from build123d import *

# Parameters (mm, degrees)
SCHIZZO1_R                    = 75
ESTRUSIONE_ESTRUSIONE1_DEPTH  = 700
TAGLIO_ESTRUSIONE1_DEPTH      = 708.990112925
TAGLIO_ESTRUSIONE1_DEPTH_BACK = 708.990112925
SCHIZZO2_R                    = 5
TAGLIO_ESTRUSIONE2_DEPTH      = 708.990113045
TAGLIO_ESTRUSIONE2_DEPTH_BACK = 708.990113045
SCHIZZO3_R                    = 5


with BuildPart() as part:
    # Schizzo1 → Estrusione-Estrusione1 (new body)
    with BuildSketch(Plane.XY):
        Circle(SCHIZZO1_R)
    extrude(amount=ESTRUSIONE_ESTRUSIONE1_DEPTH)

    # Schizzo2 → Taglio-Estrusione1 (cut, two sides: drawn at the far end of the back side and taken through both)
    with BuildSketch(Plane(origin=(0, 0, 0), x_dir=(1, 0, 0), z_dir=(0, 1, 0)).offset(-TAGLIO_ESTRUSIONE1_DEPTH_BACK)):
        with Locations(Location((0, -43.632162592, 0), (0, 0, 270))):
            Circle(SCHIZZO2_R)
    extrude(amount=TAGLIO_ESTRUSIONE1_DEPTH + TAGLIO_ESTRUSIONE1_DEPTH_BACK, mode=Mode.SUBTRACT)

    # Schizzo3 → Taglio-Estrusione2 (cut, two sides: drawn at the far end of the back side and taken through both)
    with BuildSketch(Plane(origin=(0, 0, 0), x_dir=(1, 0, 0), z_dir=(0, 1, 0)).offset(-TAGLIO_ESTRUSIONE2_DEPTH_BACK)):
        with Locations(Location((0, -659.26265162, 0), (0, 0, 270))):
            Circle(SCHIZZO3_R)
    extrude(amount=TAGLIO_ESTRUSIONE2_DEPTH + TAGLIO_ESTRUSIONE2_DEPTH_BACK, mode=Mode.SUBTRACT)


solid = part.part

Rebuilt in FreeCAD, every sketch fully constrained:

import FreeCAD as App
import Part
import Sketcher

V = App.Vector
Q = App.Units.Quantity

doc = App.newDocument("Part")
body = doc.addObject("PartDesign::Body", "Body")

sketch1 = doc.addObject("Sketcher::SketchObject", "Sketch")
body.addObject(sketch1)
sketch1.AttachmentSupport = (doc.XY_Plane, [""])
sketch1.MapMode = "FlatFace"
sketch1.addGeometry(Part.Circle(V(0, 0, 0), V(0, 0, 1), 75), False)
sketch1.addConstraint(Sketcher.Constraint("Coincident", 0, 3, -1, 1))
sketch1.addConstraint(Sketcher.Constraint("Diameter", 0, Q("150 mm")))
pad1 = doc.addObject("PartDesign::Pad", "Pad")
body.addObject(pad1)
pad1.Profile = sketch1
pad1.Length = 700

sketch2 = doc.addObject("Sketcher::SketchObject", "Sketch001")
body.addObject(sketch2)
sketch2.AttachmentSupport = (doc.XZ_Plane, [""])
sketch2.MapMode = "FlatFace"
sketch2.addGeometry(Part.Circle(V(0, 44, 0), V(0, 0, 1), 5), False)
sketch2.addConstraint(Sketcher.Constraint("PointOnObject", 0, 3, -2))
sketch2.addConstraint(Sketcher.Constraint("Diameter", 0, Q("10 mm")))
sketch2.addConstraint(Sketcher.Constraint("DistanceY", -1, 1, 0, 3, Q("43.632163 mm")))
pocket1 = doc.addObject("PartDesign::Pocket", "Pocket")
body.addObject(pocket1)
pocket1.Profile = sketch2
pocket1.Type = "ThroughAll"
pocket1.Midplane = True

sketch3 = doc.addObject("Sketcher::SketchObject", "Sketch002")
body.addObject(sketch3)
sketch3.AttachmentSupport = (doc.XZ_Plane, [""])
sketch3.MapMode = "FlatFace"
sketch3.addGeometry(Part.Circle(V(0, 659, 0), V(0, 0, 1), 5), False)
sketch3.addConstraint(Sketcher.Constraint("PointOnObject", 0, 3, -2))
sketch3.addConstraint(Sketcher.Constraint("Diameter", 0, Q("10 mm")))
sketch3.addConstraint(Sketcher.Constraint("DistanceY", -1, 1, 0, 3, Q("659.262652 mm")))
pocket2 = doc.addObject("PartDesign::Pocket", "Pocket001")
body.addObject(pocket2)
pocket2.Profile = sketch3
pocket2.Type = "ThroughAll"
pocket2.Midplane = True

doc.recompute()
